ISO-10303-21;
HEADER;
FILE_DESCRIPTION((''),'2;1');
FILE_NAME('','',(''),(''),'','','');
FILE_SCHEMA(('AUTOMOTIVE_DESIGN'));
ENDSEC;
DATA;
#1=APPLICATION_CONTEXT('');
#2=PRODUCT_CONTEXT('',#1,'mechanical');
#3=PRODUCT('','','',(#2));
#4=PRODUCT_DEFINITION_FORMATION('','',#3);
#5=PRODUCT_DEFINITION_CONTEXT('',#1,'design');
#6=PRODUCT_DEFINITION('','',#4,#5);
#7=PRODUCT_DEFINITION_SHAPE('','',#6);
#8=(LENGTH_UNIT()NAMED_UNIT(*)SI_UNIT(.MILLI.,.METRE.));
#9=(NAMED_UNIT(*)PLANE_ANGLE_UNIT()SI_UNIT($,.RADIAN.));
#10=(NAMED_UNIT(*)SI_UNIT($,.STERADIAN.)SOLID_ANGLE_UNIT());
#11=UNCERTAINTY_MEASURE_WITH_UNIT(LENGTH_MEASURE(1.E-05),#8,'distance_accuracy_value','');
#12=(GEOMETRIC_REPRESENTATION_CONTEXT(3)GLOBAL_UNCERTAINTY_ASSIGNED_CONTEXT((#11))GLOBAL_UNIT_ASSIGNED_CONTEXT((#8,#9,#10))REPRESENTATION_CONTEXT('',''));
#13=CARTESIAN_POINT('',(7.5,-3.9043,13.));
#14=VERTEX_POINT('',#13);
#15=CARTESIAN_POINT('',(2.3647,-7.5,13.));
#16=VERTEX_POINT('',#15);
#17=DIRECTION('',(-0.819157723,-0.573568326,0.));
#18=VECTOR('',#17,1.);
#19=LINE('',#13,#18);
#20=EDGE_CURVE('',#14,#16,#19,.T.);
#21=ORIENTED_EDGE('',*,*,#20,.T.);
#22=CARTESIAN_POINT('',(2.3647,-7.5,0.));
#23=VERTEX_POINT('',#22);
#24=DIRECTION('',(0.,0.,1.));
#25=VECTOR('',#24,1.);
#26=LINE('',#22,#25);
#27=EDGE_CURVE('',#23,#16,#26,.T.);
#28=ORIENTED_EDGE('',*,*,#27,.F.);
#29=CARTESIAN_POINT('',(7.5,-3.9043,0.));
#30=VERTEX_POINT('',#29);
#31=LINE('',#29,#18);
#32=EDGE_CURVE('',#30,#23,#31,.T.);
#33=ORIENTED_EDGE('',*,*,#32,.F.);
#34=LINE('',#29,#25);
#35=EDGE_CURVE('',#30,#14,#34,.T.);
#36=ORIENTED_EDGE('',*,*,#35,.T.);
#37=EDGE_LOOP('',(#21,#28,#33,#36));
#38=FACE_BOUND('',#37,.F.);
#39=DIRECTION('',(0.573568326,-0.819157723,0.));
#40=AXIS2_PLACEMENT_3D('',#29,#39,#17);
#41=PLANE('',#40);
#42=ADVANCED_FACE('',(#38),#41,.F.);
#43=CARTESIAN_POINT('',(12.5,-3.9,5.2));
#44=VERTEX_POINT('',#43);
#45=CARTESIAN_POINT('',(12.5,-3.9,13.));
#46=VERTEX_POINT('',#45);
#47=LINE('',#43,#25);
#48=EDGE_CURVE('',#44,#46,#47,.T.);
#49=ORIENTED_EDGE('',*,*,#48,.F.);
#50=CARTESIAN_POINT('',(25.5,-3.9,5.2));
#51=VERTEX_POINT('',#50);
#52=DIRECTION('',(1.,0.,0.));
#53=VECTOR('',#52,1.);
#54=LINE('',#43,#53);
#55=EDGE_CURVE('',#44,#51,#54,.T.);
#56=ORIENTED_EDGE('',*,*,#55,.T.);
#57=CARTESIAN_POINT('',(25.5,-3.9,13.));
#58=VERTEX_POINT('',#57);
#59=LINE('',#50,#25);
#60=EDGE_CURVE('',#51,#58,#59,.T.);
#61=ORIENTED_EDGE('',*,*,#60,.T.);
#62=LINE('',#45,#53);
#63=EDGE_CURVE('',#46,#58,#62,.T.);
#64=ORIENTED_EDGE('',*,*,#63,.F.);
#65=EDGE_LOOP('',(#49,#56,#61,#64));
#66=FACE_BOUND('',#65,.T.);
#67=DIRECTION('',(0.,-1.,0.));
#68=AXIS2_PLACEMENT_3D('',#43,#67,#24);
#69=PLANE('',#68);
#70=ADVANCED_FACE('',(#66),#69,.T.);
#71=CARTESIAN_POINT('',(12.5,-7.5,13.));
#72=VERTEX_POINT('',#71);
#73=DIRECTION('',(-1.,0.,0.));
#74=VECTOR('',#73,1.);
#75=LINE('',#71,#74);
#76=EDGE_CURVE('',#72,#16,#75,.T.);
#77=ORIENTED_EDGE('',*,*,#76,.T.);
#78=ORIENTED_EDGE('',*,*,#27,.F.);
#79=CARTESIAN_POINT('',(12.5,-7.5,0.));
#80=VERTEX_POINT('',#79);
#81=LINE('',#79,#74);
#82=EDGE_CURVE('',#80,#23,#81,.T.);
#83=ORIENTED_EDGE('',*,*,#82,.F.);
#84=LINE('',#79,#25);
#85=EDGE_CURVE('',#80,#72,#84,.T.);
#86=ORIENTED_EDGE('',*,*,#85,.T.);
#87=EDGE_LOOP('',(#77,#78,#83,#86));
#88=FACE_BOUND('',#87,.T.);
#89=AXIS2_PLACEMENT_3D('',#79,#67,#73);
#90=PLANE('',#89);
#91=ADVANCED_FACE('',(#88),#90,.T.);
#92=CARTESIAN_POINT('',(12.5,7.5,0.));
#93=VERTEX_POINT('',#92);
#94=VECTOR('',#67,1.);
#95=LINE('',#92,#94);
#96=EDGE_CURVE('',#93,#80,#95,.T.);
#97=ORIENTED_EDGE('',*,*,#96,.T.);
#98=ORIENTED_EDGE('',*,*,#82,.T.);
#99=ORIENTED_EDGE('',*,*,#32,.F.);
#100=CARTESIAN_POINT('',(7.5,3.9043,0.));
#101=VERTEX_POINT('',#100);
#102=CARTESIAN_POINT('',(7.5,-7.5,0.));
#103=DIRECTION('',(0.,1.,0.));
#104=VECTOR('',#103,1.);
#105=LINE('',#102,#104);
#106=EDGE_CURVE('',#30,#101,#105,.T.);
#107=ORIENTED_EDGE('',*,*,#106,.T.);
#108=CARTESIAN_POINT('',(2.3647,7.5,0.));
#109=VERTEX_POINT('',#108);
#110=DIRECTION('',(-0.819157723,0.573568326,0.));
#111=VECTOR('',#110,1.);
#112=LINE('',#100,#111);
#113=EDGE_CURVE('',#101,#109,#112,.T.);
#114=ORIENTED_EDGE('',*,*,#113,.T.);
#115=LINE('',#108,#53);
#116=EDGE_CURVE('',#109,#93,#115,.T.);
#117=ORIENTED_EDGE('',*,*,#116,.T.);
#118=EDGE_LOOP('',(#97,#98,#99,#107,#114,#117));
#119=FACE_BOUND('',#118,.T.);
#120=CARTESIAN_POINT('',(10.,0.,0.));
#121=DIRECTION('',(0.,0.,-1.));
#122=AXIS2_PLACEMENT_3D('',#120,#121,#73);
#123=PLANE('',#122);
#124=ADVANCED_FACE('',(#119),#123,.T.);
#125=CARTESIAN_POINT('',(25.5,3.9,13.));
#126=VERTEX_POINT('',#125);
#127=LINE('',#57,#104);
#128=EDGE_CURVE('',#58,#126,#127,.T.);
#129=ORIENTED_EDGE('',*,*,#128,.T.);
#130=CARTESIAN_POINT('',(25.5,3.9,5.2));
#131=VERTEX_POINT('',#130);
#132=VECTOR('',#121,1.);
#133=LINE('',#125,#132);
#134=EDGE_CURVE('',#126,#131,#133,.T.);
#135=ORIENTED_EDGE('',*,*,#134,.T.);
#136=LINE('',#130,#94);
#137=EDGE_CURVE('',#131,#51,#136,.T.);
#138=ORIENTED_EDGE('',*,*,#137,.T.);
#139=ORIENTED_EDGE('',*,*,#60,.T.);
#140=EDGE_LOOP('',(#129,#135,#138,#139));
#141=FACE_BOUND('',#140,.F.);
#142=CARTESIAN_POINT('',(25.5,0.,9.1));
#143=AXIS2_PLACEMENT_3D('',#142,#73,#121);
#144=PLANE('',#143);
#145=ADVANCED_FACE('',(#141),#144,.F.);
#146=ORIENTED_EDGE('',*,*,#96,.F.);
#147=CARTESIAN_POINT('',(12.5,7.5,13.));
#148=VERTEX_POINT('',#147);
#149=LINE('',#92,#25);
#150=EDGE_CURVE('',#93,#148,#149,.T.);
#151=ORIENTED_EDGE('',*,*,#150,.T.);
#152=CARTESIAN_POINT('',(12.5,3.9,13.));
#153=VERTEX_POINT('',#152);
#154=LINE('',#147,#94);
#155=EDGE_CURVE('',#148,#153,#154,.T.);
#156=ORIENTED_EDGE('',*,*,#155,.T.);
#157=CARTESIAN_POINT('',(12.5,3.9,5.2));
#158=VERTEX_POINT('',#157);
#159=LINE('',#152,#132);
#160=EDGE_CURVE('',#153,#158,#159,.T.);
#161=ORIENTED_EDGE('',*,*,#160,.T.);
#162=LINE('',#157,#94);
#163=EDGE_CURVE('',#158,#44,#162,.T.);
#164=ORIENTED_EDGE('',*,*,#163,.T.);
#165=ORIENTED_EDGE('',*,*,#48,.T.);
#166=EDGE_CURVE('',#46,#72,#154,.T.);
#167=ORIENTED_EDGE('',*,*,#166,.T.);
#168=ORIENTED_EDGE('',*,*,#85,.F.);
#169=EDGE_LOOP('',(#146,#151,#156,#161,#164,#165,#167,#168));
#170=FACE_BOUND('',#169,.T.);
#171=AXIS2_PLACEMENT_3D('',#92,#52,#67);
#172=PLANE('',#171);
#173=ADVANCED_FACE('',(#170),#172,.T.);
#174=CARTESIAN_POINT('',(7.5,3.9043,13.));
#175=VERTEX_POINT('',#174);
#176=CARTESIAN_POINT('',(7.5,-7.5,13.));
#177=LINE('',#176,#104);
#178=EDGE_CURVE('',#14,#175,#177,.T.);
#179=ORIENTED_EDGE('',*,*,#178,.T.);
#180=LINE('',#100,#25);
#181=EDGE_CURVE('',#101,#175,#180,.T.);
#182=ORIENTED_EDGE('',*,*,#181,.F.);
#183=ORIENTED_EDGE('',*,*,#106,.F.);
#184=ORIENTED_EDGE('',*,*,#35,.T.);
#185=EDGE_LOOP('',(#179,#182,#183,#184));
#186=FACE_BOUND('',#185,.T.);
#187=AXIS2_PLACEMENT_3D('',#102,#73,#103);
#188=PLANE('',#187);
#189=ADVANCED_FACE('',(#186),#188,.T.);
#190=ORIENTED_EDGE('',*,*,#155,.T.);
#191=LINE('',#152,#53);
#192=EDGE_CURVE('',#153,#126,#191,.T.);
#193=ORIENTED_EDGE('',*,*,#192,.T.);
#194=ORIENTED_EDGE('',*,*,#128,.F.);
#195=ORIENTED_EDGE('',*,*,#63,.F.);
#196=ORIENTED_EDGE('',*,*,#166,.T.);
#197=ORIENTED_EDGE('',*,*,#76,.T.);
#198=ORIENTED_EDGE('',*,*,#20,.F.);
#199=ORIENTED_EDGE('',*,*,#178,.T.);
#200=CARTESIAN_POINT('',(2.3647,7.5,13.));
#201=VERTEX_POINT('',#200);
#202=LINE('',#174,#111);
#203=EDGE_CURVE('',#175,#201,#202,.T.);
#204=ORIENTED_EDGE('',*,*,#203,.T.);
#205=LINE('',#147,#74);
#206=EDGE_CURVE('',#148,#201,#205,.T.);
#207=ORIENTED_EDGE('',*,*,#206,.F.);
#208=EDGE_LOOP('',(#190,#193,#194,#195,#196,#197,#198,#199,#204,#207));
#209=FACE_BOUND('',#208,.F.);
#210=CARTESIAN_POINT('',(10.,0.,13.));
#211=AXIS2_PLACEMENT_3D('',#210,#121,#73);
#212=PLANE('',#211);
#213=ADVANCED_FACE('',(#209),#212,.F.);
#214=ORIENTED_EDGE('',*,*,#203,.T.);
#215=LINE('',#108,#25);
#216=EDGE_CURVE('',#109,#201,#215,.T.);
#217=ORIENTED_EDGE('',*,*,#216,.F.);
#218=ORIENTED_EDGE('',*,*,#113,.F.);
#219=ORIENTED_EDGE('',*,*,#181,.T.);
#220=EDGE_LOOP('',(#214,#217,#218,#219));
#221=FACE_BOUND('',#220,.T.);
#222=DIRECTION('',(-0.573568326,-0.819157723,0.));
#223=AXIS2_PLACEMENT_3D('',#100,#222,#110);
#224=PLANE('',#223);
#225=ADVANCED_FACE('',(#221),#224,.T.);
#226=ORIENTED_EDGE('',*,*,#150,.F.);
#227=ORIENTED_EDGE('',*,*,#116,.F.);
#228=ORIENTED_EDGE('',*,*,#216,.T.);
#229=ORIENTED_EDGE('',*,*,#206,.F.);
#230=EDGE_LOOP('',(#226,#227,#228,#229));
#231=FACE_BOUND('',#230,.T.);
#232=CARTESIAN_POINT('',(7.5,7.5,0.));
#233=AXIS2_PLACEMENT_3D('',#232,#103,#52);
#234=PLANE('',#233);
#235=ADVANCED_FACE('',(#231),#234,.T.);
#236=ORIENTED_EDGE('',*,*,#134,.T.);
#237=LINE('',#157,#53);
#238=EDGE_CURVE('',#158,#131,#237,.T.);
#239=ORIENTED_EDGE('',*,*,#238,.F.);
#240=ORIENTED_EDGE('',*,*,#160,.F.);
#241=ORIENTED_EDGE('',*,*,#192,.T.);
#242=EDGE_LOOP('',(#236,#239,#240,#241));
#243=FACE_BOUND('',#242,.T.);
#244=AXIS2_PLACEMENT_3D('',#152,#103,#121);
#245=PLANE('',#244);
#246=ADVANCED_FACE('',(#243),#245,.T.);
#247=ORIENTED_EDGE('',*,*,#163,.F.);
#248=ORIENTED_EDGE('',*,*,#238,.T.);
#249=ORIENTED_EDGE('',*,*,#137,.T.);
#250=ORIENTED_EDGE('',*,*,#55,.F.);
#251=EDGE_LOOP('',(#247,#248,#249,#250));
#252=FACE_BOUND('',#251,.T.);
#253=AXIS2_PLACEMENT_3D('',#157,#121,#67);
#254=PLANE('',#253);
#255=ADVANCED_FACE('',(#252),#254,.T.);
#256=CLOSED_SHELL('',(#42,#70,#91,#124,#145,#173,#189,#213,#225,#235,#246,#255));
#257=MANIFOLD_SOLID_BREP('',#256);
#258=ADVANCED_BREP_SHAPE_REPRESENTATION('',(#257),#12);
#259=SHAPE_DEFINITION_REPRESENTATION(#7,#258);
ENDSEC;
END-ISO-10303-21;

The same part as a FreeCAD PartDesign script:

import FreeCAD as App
import Part
import Sketcher
from FreeCAD import Vector
Q = App.Units.Quantity

doc = App.newDocument("Part")
body = doc.addObject("PartDesign::Body", "Body")

# Sketch on XY plane
sketch1 = body.newObject("Sketcher::SketchObject", "Sketch")
sketch1.AttachmentSupport = (doc.getObject("XY_Plane"), [""])
sketch1.MapMode = "FlatFace"
sketch1.addGeometry(Part.LineSegment(Vector(12, -8, 0), Vector(12, 8, 0)), False)
sketch1.addGeometry(Part.LineSegment(Vector(12, 8, 0), Vector(8, 8, 0)), False)
sketch1.addGeometry(Part.LineSegment(Vector(8, 8, 0), Vector(8, -8, 0)), False)
sketch1.addGeometry(Part.LineSegment(Vector(8, -8, 0), Vector(12, -8, 0)), False)
sketch1.addConstraint(Sketcher.Constraint("Coincident", 0, 2, 1, 1))
sketch1.addConstraint(Sketcher.Constraint("Coincident", 1, 2, 2, 1))
sketch1.addConstraint(Sketcher.Constraint("Coincident", 2, 2, 3, 1))
sketch1.addConstraint(Sketcher.Constraint("Coincident", 3, 2, 0, 1))
sketch1.addConstraint(Sketcher.Constraint("Vertical", 0))
sketch1.addConstraint(Sketcher.Constraint("Horizontal", 1))
sketch1.addConstraint(Sketcher.Constraint("Vertical", 2))
sketch1.addConstraint(Sketcher.Constraint("Horizontal", 3))
sketch1.addConstraint(Sketcher.Constraint("DistanceX", 1, 2, 1, 1, 5.0))
sketch1.addConstraint(Sketcher.Constraint("DistanceY", 0, 1, 0, 2, 15.0))
sketch1.addConstraint(Sketcher.Constraint("DistanceX", -1, 1, 0, 2, 12.5))
sketch1.addConstraint(Sketcher.Constraint("DistanceY", -1, 1, 0, 2, 7.5))
pad1 = body.newObject("PartDesign::Pad", "Pad")
pad1.Profile = sketch1
pad1.Length = 13

# Sketch on YZ plane
sketch2 = body.newObject("Sketcher::SketchObject", "Sketch001")
sketch2.AttachmentSupport = (doc.getObject("YZ_Plane"), [""])
sketch2.MapMode = "FlatFace"
sketch2.AttachmentOffset = App.Placement(Vector(0, 0, 12.5), App.Rotation())
sketch2.addGeometry(Part.LineSegment(Vector(-4, 13, 0), Vector(-4, 5, 0)), False)
sketch2.addGeometry(Part.LineSegment(Vector(-4, 5, 0), Vector(4, 5, 0)), False)
sketch2.addGeometry(Part.LineSegment(Vector(4, 5, 0), Vector(4, 13, 0)), False)
sketch2.addGeometry(Part.LineSegment(Vector(4, 13, 0), Vector(-4, 13, 0)), False)
sketch2.addConstraint(Sketcher.Constraint("Coincident", 0, 2, 1, 1))
sketch2.addConstraint(Sketcher.Constraint("Coincident", 1, 2, 2, 1))
sketch2.addConstraint(Sketcher.Constraint("Coincident", 2, 2, 3, 1))
sketch2.addConstraint(Sketcher.Constraint("Coincident", 3, 2, 0, 1))
sketch2.addConstraint(Sketcher.Constraint("Vertical", 0))
sketch2.addConstraint(Sketcher.Constraint("Horizontal", 1))
sketch2.addConstraint(Sketcher.Constraint("Vertical", 2))
sketch2.addConstraint(Sketcher.Constraint("Horizontal", 3))
sketch2.addConstraint(Sketcher.Constraint("Equal", 3, 0))
sketch2.addConstraint(Sketcher.Constraint("DistanceX", 1, 1, 1, 2, 7.8))
sketch2.addConstraint(Sketcher.Constraint("DistanceY", -1, 1, 2, 2, 13.0))
sketch2.addConstraint(Sketcher.Constraint("DistanceX", 0, 2, -1, 1, 3.9))
pad2 = body.newObject("PartDesign::Pad", "Pad001")
pad2.Profile = sketch2
pad2.Length = 13

# Sketch on XY plane
sketch3 = body.newObject("Sketcher::SketchObject", "Sketch002")
sketch3.AttachmentSupport = (doc.getObject("XY_Plane"), [""])
sketch3.MapMode = "FlatFace"
sketch3.addGeometry(Part.LineSegment(Vector(7.5, 3.9, 0), Vector(7.5, 7.5, 0)), False)
sketch3.addGeometry(Part.LineSegment(Vector(7.5, 7.5, 0), Vector(2.4, 7.5, 0)), False)
sketch3.addGeometry(Part.LineSegment(Vector(2.4, 7.5, 0), Vector(7.5, 3.9, 0)), False)
sketch3.addGeometry(Part.LineSegment(Vector(7.5, -7.5, 0), Vector(7.5, -3.9, 0)), False)
sketch3.addGeometry(Part.LineSegment(Vector(7.5, -3.9, 0), Vector(2.4, -7.5, 0)), False)
sketch3.addGeometry(Part.LineSegment(Vector(2.4, -7.5, 0), Vector(7.5, -7.5, 0)), False)
sketch3.addConstraint(Sketcher.Constraint("Coincident", 0, 2, 1, 1))
sketch3.addConstraint(Sketcher.Constraint("Coincident", 1, 2, 2, 1))
sketch3.addConstraint(Sketcher.Constraint("Coincident", 2, 2, 0, 1))
sketch3.addConstraint(Sketcher.Constraint("Coincident", 3, 2, 4, 1))
sketch3.addConstraint(Sketcher.Constraint("Coincident", 4, 2, 5, 1))
sketch3.addConstraint(Sketcher.Constraint("Coincident", 5, 2, 3, 1))
sketch3.addConstraint(Sketcher.Constraint("Vertical", 0))
sketch3.addConstraint(Sketcher.Constraint("Horizontal", 1))
sketch3.addConstraint(Sketcher.Constraint("Vertical", 3))
sketch3.addConstraint(Sketcher.Constraint("Horizontal", 5))
sketch3.addConstraint(Sketcher.Constraint("Symmetric", 2, 2, 3, 2, -1))
sketch3.addConstraint(Sketcher.Constraint("Symmetric", 1, 2, 4, 2, -1))
sketch3.addConstraint(Sketcher.Constraint("Angle", 2, Q("-34.9994 deg")))
sketch3.addConstraint(Sketcher.Constraint("DistanceY", 4, 2, 1, 2, 15.0))
sketch3.addConstraint(Sketcher.Constraint("DistanceX", -1, 1, 0, 2, 7.5))
sketch3.addConstraint(Sketcher.Constraint("Distance", 2, 6.269))
pad3 = body.newObject("PartDesign::Pad", "Pad002")
pad3.Profile = sketch3
pad3.Length = 13

doc.recompute()
